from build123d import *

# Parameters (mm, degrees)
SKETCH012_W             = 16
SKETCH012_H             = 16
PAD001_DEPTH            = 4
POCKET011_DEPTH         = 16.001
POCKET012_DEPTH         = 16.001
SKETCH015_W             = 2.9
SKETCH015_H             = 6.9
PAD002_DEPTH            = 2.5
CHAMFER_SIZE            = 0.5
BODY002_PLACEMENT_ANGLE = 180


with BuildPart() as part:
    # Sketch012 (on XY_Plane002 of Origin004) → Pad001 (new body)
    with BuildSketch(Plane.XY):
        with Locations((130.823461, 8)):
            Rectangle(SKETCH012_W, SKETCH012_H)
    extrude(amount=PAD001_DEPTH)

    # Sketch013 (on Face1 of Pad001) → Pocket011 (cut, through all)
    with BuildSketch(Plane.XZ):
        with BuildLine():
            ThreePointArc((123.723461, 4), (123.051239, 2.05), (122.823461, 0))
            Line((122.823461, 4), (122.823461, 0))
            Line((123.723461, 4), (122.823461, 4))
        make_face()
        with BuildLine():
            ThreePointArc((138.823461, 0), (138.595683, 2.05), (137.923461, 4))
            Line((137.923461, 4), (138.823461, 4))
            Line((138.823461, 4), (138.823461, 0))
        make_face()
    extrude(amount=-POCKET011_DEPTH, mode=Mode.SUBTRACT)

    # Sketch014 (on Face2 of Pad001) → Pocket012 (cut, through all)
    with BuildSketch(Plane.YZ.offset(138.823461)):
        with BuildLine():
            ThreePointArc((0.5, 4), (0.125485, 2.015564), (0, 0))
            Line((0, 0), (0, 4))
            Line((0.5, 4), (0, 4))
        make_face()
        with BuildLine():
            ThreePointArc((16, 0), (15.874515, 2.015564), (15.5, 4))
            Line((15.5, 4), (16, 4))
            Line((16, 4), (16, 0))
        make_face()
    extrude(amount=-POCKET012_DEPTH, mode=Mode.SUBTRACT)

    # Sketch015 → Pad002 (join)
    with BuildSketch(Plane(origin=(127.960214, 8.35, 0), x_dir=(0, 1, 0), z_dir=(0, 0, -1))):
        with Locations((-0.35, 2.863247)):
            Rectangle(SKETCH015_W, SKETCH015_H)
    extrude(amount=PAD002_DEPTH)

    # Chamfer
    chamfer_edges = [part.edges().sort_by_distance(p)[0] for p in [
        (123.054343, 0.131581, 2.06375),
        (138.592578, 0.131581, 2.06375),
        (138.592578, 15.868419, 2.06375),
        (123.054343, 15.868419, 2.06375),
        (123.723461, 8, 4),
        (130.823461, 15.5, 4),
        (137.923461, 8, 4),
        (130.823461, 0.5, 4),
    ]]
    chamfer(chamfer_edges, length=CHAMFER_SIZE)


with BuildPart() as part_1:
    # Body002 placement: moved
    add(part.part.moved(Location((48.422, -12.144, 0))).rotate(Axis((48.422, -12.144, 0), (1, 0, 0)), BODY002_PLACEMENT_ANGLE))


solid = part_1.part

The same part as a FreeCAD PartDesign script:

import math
import FreeCAD as App
import Part
import Sketcher
Q = App.Units.Quantity


def edges_at(feature, points):
    """Names of the edges that pass closest to the given points."""
    edges = feature.Shape.Edges
    near = lambda p: min(range(len(edges)), key=lambda i: edges[i].distToShape(Part.Vertex(*p))[0])
    return sorted({f"Edge{near(p) + 1}" for p in points})

doc = App.newDocument("Part")
body = doc.addObject("PartDesign::Body", "Body")

# Sketch on XY plane
sketch1 = body.newObject("Sketcher::SketchObject", "Sketch")
sketch1.AttachmentSupport = (doc.getObject("XY_Plane"), [""])
sketch1.MapMode = "FlatFace"
sketch1.addGeometry(Part.LineSegment(App.Vector(123, 16, 0), App.Vector(123, 0, 0)), False)
sketch1.addGeometry(Part.LineSegment(App.Vector(123, 0, 0), App.Vector(139, 0, 0)), False)
sketch1.addGeometry(Part.LineSegment(App.Vector(139, 0, 0), App.Vector(139, 16, 0)), False)
sketch1.addGeometry(Part.LineSegment(App.Vector(139, 16, 0), App.Vector(123, 16, 0)), False)
sketch1.addConstraint(Sketcher.Constraint("Coincident", 0, 2, 1, 1))
sketch1.addConstraint(Sketcher.Constraint("Coincident", 1, 2, 2, 1))
sketch1.addConstraint(Sketcher.Constraint("Coincident", 2, 2, 3, 1))
sketch1.addConstraint(Sketcher.Constraint("Coincident", 3, 2, 0, 1))
sketch1.addConstraint(Sketcher.Constraint("Vertical", 0))
sketch1.addConstraint(Sketcher.Constraint("Horizontal", 1))
sketch1.addConstraint(Sketcher.Constraint("Vertical", 2))
sketch1.addConstraint(Sketcher.Constraint("Horizontal", 3))
sketch1.addConstraint(Sketcher.Constraint("PointOnObject", 0, 2, -1))
sketch1.addConstraint(Sketcher.Constraint("Equal", 3, 0))
sketch1.addConstraint(Sketcher.Constraint("DistanceX", 1, 1, 1, 2, Q("16 mm")))
sketch1.addConstraint(Sketcher.Constraint("DistanceX", -1, 1, 0, 2, Q("122.823461 mm")))
pad1 = body.newObject("PartDesign::Pad", "Pad")
pad1.Profile = sketch1
pad1.Length = 4

# Sketch on XZ plane
sketch2 = body.newObject("Sketcher::SketchObject", "Sketch001")
sketch2.AttachmentSupport = (doc.getObject("XZ_Plane"), [""])
sketch2.MapMode = "FlatFace"
sketch2.addGeometry(Part.ArcOfCircle(Part.Circle(App.Vector(132.2, 0, 0), App.Vector(0, 0, 1), 9.3), math.radians(155), math.radians(180)), False)
sketch2.addGeometry(Part.LineSegment(App.Vector(123.7, 4, 0), App.Vector(122.8, 4, 0)), False)
sketch2.addGeometry(Part.LineSegment(App.Vector(122.8, 4, 0), App.Vector(122.8, 0, 0)), False)
sketch2.addGeometry(Part.ArcOfCircle(Part.Circle(App.Vector(129.5, 0, 0), App.Vector(0, 0, 1), 9.3), math.radians(0), math.radians(25)), False)
sketch2.addGeometry(Part.LineSegment(App.Vector(138.8, 0, 0), App.Vector(138.8, 4, 0)), False)
sketch2.addGeometry(Part.LineSegment(App.Vector(138.8, 4, 0), App.Vector(137.9, 4, 0)), False)
sketch2.addConstraint(Sketcher.Constraint("Coincident", 0, 1, 1, 1))
sketch2.addConstraint(Sketcher.Constraint("Coincident", 1, 2, 2, 1))
sketch2.addConstraint(Sketcher.Constraint("Tangent", 2, 2, 0, 2))
sketch2.addConstraint(Sketcher.Constraint("Tangent", 3, 1, 4, 1))
sketch2.addConstraint(Sketcher.Constraint("Coincident", 4, 2, 5, 1))
sketch2.addConstraint(Sketcher.Constraint("Coincident", 5, 2, 3, 2))
sketch2.addConstraint(Sketcher.Constraint("Horizontal", 1))
sketch2.addConstraint(Sketcher.Constraint("Vertical", 2))
sketch2.addConstraint(Sketcher.Constraint("Vertical", 4))
sketch2.addConstraint(Sketcher.Constraint("Horizontal", 5))
sketch2.addConstraint(Sketcher.Constraint("Equal", 0, 3))
sketch2.addConstraint(Sketcher.Constraint("PointOnObject", 0, 3, -1))
sketch2.addConstraint(Sketcher.Constraint("PointOnObject", 3, 3, -1))
sketch2.addConstraint(Sketcher.Constraint("Horizontal", 1, 2, 4, 2))
sketch2.addConstraint(Sketcher.Constraint("DistanceY", 2, 2, 2, 1, Q("4 mm")))
sketch2.addConstraint(Sketcher.Constraint("DistanceX", 1, 2, 1, 1, Q("0.9 mm")))
sketch2.addConstraint(Sketcher.Constraint("DistanceX", 2, 2, 3, 1, Q("16 mm")))
sketch2.addConstraint(Sketcher.Constraint("DistanceX", -1, 1, 0, 3, Q("132.162359 mm")))
pocket1 = body.newObject("PartDesign::Pocket", "Pocket")
pocket1.Profile = sketch2
pocket1.Type = "ThroughAll"

# Sketch on YZ plane
sketch3 = body.newObject("Sketcher::SketchObject", "Sketch002")
sketch3.AttachmentSupport = (doc.getObject("YZ_Plane"), [""])
sketch3.MapMode = "FlatFace"
sketch3.AttachmentOffset = App.Placement(App.Vector(0, 0, 138.823461), App.Rotation())
sketch3.addGeometry(Part.ArcOfCircle(Part.Circle(App.Vector(16.25007, -0.000009, 0), App.Vector(0, 0, 1), 16.25007), math.radians(165.749998), math.radians(179.999969)), False)
sketch3.addGeometry(Part.LineSegment(App.Vector(0.5, 4, 0), App.Vector(0, 4, 0)), False)
sketch3.addGeometry(Part.LineSegment(App.Vector(0, 4, 0), App.Vector(0, 0, 0)), False)
sketch3.addGeometry(Part.ArcOfCircle(Part.Circle(App.Vector(-0.25007, -0.000009, 0), App.Vector(0, 0, 1), 16.25007), math.radians(0.000031), math.radians(14.250002)), False)
sketch3.addGeometry(Part.LineSegment(App.Vector(16, 0, 0), App.Vector(16, 4, 0)), False)
sketch3.addGeometry(Part.LineSegment(App.Vector(16, 4, 0), App.Vector(15.5, 4, 0)), False)
sketch3.addConstraint(Sketcher.Constraint("Coincident", 0, 1, 1, 1))
sketch3.addConstraint(Sketcher.Constraint("Coincident", 1, 2, 2, 1))
sketch3.addConstraint(Sketcher.Constraint("Coincident", 2, 2, 0, 2))
sketch3.addConstraint(Sketcher.Constraint("Coincident", 3, 1, 4, 1))
sketch3.addConstraint(Sketcher.Constraint("Coincident", 4, 2, 5, 1))
sketch3.addConstraint(Sketcher.Constraint("Coincident", 5, 2, 3, 2))
sketch3.addConstraint(Sketcher.Constraint("Horizontal", 1))
sketch3.addConstraint(Sketcher.Constraint("Vertical", 2))
sketch3.addConstraint(Sketcher.Constraint("Vertical", 4))
sketch3.addConstraint(Sketcher.Constraint("Horizontal", 5))
sketch3.addConstraint(Sketcher.Constraint("Coincident", 2, 2, -1, 1))
sketch3.addConstraint(Sketcher.Constraint("PointOnObject", 3, 1, -1))
sketch3.addConstraint(Sketcher.Constraint("DistanceY", 2, 2, 2, 1, Q("4 mm")))
sketch3.addConstraint(Sketcher.Constraint("DistanceY", 4, 1, 4, 2, Q("4 mm")))
sketch3.addConstraint(Sketcher.Constraint("DistanceX", 1, 2, 1, 1, Q("0.5 mm")))
sketch3.addConstraint(Sketcher.Constraint("DistanceX", 5, 2, 5, 1, Q("0.5 mm")))
sketch3.addConstraint(Sketcher.Constraint("DistanceX", -1, 1, 3, 1, Q("16 mm")))
sketch3.addConstraint(Sketcher.Constraint("Radius", 0, Q("16.25007 mm")))
sketch3.addConstraint(Sketcher.Constraint("Radius", 3, Q("16.25007 mm")))
pocket2 = body.newObject("PartDesign::Pocket", "Pocket001")
pocket2.Profile = sketch3
pocket2.Type = "ThroughAll"

# Sketch on XY plane
sketch4 = body.newObject("Sketcher::SketchObject", "Sketch003")
sketch4.AttachmentSupport = (doc.getObject("XY_Plane"), [""])
sketch4.MapMode = "FlatFace"
sketch4.addGeometry(Part.LineSegment(App.Vector(134.3, 6.5, 0), App.Vector(127.4, 6.5, 0)), False)
sketch4.addGeometry(Part.LineSegment(App.Vector(127.4, 6.5, 0), App.Vector(127.4, 9.4, 0)), False)
sketch4.addGeometry(Part.LineSegment(App.Vector(127.4, 9.4, 0), App.Vector(134.3, 9.4, 0)), False)
sketch4.addGeometry(Part.LineSegment(App.Vector(134.3, 9.4, 0), App.Vector(134.3, 6.5, 0)), False)
sketch4.addConstraint(Sketcher.Constraint("Coincident", 0, 2, 1, 1))
sketch4.addConstraint(Sketcher.Constraint("Coincident", 1, 2, 2, 1))
sketch4.addConstraint(Sketcher.Constraint("Coincident", 2, 2, 3, 1))
sketch4.addConstraint(Sketcher.Constraint("Coincident", 3, 2, 0, 1))
sketch4.addConstraint(Sketcher.Constraint("Horizontal", 0))
sketch4.addConstraint(Sketcher.Constraint("Vertical", 1))
sketch4.addConstraint(Sketcher.Constraint("Horizontal", 2))
sketch4.addConstraint(Sketcher.Constraint("Vertical", 3))
sketch4.addConstraint(Sketcher.Constraint("DistanceX", 0, 2, 0, 1, Q("6.9 mm")))
sketch4.addConstraint(Sketcher.Constraint("DistanceY", 1, 1, 1, 2, Q("2.9 mm")))
sketch4.addConstraint(Sketcher.Constraint("DistanceY", -1, 1, 0, 2, Q("6.55 mm")))
sketch4.addConstraint(Sketcher.Constraint("DistanceX", -1, 1, 0, 2, Q("127.373461 mm")))
pad2 = body.newObject("PartDesign::Pad", "Pad001")
pad2.Profile = sketch4
pad2.Length = 2.5
pad2.Reversed = True
doc.recompute()

chamfer = body.newObject("PartDesign::Chamfer", "Chamfer")
chamfer.Base = (pad2, edges_at(pad2, [
    (123.054, 0.132, 2.064),
    (138.593, 0.132, 2.064),
    (138.593, 15.868, 2.064),
    (123.054, 15.868, 2.064),
    (123.723, 8, 4),
    (130.823, 15.5, 4),
    (137.923, 8, 4),
    (130.823, 0.5, 4),
]))
chamfer.Size = 0.5
body2 = doc.addObject("PartDesign::Body", "Body001")
doc.recompute()

body.Placement = App.Placement(App.Vector(48.422, -12.144, 0), App.Rotation(App.Vector(1, 0, 0), 180))
boolean = body2.newObject("PartDesign::Boolean", "Boolean")
boolean.Type = "Fuse"
boolean.addObjects([body])

doc.recompute()
